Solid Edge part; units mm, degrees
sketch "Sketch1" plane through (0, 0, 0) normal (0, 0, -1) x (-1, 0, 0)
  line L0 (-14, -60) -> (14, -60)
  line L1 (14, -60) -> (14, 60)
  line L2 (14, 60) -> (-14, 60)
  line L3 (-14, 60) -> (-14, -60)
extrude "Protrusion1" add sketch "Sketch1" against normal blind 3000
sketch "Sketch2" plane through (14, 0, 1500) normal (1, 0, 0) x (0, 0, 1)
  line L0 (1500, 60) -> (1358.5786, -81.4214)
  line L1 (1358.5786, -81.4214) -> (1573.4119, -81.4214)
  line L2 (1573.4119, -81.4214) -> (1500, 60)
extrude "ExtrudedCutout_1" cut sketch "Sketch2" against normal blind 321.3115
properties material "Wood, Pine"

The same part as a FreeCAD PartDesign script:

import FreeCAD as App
import Part
import Sketcher
Q = App.Units.Quantity


def add_polygon(sketch, points):
    """Adds a closed chain of lines whose ends are joined by coincident constraints."""
    first, n = sketch.GeometryCount, len(points)
    for a, b in zip(points, points[1:] + points[:1]):
        sketch.addGeometry(Part.LineSegment(App.Vector(*a, 0), App.Vector(*b, 0)), False)
    for i in range(n):
        sketch.addConstraint(Sketcher.Constraint("Coincident", first + i, 2, first + (i + 1) % n, 1))

doc = App.newDocument("Part")
body = doc.addObject("PartDesign::Body", "Body")

sketch1 = body.newObject("Sketcher::SketchObject", "Sketch")
sketch1.AttachmentSupport = (doc.getObject("XY_Plane"), [""])
sketch1.MapMode = "FlatFace"
add_polygon(sketch1, [(14, 60), (14, -60), (-14, -60), (-14, 60)])
sketch1.addConstraint([
    Sketcher.Constraint("Vertical", 0),
    Sketcher.Constraint("Horizontal", 1),
    Sketcher.Constraint("Vertical", 2),
    Sketcher.Constraint("Horizontal", 3),
    Sketcher.Constraint("Symmetric", 0, 2, 2, 2, -1, 1),
    Sketcher.Constraint("DistanceX", 1, 2, 1, 1, Q("28 mm")),
    Sketcher.Constraint("DistanceY", 0, 2, 0, 1, Q("120 mm")),
])
pad1 = body.newObject("PartDesign::Pad", "Pad")
pad1.Profile = sketch1
pad1.Length = 3000

sketch2 = body.newObject("Sketcher::SketchObject", "Sketch001")
sketch2.AttachmentSupport = (doc.getObject("YZ_Plane"), [""])
sketch2.MapMode = "FlatFace"
sketch2.AttachmentOffset = App.Placement(App.Vector(0, 0, 14), App.Rotation())
add_polygon(sketch2, [(81.4214, 3073.4119), (-60, 3000), (81.4214, 2858.5786)])
sketch2.addConstraint([
    Sketcher.Constraint("Vertical", 2),
    Sketcher.Constraint("Angle", 1, Q("-45 deg")),
    Sketcher.Constraint("Distance", 1, Q("200 mm")),
    Sketcher.Constraint("DistanceX", 0, 2, -1, 1, Q("60 mm")),
    Sketcher.Constraint("DistanceY", -1, 1, 0, 2, Q("3000 mm")),
    Sketcher.Constraint("DistanceY", 2, 1, 2, 2, Q("214.8333 mm")),
])
pocket1 = body.newObject("PartDesign::Pocket", "Pocket")
pocket1.Profile = sketch2
pocket1.Length = 321.3115

doc.recompute()
